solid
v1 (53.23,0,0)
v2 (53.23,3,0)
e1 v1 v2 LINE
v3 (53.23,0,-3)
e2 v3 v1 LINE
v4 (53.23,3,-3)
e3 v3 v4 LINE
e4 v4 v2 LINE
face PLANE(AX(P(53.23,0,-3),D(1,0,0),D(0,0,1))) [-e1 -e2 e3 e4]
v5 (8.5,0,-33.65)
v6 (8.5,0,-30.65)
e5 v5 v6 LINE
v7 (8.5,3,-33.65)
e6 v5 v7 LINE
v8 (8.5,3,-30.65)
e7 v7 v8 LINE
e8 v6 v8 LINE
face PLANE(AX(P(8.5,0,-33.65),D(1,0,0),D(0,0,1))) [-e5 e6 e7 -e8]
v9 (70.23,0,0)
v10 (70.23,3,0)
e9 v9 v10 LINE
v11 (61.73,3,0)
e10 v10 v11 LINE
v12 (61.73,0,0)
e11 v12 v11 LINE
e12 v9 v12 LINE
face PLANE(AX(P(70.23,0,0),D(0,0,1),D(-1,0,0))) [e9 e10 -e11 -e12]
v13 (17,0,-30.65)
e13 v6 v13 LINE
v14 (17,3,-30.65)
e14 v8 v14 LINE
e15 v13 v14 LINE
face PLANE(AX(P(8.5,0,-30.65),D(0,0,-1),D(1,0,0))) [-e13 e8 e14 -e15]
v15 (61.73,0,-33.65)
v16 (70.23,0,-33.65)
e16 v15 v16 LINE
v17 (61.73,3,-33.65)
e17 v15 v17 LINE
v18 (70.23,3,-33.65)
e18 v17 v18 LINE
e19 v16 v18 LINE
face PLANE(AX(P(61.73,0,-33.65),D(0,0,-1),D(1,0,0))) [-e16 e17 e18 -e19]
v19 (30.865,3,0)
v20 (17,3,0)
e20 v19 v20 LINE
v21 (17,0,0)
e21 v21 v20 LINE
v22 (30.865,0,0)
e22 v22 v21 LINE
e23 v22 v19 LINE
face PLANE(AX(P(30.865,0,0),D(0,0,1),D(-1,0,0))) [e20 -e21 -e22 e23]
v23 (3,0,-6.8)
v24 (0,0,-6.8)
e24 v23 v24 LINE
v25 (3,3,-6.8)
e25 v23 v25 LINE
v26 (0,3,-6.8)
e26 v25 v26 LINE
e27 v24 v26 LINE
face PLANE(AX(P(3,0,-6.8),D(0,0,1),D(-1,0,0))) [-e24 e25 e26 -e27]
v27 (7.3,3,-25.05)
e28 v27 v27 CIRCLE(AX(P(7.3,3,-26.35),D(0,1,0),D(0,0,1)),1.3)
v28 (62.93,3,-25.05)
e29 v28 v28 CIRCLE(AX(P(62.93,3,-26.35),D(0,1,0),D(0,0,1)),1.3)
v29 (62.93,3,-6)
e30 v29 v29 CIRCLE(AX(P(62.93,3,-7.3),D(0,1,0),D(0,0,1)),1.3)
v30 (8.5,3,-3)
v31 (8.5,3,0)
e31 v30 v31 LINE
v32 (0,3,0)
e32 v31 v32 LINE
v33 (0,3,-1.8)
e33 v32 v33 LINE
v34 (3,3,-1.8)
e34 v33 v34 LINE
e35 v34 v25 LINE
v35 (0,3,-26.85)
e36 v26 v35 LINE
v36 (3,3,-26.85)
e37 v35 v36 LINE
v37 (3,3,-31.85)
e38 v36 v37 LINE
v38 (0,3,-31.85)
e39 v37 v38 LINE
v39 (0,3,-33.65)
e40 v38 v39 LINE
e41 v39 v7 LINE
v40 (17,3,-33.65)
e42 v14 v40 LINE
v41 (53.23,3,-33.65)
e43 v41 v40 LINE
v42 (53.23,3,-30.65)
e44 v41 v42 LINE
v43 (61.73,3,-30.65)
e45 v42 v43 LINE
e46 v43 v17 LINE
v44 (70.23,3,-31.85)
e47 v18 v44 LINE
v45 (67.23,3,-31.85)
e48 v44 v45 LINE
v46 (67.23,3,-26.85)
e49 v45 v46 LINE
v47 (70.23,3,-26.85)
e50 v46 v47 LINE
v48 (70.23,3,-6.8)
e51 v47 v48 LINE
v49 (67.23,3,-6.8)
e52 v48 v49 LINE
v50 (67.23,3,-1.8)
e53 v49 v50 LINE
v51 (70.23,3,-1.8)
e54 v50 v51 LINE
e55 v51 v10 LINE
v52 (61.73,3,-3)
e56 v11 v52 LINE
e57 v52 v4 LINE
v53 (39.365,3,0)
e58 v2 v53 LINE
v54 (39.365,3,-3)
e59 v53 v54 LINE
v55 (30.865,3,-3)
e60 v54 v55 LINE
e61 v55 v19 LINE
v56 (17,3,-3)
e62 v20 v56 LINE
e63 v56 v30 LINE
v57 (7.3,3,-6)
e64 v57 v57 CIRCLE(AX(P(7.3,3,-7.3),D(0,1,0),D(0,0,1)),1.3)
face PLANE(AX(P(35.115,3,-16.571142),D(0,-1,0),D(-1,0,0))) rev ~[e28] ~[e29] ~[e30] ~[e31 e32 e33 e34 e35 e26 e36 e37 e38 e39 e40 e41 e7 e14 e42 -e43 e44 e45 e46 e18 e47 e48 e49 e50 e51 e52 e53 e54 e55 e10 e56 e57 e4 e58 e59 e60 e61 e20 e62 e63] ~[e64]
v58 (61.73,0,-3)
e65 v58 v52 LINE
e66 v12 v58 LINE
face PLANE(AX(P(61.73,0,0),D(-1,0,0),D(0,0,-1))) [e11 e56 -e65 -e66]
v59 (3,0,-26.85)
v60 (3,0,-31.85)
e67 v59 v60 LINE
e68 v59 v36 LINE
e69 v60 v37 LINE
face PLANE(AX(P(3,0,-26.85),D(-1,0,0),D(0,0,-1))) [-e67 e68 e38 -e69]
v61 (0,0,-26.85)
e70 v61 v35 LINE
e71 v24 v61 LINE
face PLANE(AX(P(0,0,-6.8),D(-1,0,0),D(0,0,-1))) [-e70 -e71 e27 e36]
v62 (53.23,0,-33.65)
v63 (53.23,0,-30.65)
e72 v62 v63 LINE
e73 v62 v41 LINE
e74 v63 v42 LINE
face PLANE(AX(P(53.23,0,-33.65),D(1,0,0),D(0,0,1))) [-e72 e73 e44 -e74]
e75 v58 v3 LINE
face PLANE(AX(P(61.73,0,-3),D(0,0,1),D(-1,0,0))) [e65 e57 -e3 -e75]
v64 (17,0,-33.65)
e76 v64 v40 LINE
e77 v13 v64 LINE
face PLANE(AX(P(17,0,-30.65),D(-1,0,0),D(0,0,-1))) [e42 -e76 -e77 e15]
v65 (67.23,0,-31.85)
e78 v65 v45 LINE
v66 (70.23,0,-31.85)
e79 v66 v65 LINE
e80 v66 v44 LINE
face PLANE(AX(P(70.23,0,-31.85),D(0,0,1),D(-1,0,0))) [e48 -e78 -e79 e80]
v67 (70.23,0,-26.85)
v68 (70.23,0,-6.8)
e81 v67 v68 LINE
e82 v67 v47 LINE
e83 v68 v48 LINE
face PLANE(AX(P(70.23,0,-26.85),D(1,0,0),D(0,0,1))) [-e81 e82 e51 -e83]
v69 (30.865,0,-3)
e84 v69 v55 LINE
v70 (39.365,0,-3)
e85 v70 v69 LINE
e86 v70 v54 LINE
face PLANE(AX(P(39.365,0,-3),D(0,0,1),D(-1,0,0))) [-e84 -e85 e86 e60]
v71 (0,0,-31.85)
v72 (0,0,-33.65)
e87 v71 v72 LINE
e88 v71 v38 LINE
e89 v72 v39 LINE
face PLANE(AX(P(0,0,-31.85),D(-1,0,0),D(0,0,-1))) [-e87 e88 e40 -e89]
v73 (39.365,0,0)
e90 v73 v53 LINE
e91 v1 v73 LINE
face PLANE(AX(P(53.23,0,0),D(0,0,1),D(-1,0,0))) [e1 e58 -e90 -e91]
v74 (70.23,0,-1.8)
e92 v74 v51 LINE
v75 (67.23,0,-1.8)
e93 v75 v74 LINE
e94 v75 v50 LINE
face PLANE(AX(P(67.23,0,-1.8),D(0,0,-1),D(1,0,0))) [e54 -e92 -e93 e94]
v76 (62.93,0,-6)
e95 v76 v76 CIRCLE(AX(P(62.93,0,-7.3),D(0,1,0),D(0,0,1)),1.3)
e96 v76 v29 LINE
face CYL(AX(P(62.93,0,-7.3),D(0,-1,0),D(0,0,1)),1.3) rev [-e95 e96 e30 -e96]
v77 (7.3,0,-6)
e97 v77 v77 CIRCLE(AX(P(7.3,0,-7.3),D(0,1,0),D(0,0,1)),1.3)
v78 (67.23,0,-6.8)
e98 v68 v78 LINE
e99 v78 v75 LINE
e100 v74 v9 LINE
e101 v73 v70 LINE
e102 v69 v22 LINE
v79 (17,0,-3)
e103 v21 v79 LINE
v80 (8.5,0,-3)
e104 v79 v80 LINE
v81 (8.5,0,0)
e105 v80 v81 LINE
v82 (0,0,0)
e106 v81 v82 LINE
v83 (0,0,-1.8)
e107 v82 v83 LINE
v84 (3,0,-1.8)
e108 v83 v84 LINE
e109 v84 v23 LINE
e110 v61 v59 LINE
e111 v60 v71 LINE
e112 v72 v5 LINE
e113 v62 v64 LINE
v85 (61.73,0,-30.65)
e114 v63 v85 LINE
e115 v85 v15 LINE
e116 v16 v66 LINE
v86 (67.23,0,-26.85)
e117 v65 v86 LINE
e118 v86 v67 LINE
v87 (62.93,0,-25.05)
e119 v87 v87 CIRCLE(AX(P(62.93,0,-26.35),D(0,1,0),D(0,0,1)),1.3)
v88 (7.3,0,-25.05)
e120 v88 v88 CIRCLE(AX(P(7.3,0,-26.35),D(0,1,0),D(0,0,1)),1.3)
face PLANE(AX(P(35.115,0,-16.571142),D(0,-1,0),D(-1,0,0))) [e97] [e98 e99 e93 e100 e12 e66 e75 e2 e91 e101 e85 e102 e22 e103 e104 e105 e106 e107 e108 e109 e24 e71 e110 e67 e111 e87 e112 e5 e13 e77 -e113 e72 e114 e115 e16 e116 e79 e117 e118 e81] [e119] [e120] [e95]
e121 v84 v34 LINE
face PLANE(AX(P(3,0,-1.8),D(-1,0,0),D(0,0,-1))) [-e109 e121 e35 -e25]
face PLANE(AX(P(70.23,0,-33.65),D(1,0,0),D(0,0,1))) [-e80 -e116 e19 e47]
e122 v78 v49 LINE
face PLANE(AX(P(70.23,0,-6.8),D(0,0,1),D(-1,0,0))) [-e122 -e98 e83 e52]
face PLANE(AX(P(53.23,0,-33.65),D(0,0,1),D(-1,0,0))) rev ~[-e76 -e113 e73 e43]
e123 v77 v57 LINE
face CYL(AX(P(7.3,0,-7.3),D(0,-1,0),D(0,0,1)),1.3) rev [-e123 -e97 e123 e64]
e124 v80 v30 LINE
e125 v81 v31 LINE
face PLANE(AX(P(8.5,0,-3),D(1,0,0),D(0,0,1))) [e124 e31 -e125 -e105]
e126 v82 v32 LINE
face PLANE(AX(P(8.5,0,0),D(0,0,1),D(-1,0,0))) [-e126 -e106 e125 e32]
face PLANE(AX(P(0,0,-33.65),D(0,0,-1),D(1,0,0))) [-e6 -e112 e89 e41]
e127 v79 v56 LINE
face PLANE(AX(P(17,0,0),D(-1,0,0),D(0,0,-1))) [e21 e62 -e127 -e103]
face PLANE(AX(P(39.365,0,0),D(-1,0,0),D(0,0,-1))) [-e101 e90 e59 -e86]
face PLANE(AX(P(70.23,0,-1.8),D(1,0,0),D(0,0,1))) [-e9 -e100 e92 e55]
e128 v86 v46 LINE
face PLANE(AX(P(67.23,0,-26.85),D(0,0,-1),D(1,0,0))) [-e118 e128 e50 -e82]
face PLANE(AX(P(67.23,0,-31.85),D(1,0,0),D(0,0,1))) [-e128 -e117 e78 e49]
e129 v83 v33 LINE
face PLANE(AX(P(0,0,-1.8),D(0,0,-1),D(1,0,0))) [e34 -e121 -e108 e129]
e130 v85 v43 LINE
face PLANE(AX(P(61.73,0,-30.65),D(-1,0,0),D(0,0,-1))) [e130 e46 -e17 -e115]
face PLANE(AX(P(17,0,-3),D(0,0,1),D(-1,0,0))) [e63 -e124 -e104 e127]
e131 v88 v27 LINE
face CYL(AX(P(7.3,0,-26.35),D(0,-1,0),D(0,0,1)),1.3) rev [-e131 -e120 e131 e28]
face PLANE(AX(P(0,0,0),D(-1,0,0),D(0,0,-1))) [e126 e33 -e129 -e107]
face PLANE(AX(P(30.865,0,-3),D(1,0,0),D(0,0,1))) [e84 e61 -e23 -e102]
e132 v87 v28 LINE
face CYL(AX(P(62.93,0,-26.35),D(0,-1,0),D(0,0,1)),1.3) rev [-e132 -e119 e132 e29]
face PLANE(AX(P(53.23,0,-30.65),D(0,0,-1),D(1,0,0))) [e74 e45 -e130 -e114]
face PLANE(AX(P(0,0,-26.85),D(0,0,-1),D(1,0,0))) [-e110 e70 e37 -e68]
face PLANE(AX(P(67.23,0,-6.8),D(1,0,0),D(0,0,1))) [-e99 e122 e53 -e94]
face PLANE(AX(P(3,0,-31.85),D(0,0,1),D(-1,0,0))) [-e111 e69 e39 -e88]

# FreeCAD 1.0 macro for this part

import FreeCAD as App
import Part
import Sketcher

doc = App.newDocument("Part")
body = doc.addObject("PartDesign::Body", "Body")

# Sketch on XZ plane
sketch1 = body.newObject("Sketcher::SketchObject", "Sketch")
sketch1.AttachmentSupport = (doc.getObject("XZ_Plane"), [""])
sketch1.MapMode = "FlatFace"
sketch1.addGeometry([
    Part.LineSegment(App.Vector(53.2, -33.6, 0), App.Vector(17, -33.6, 0)),  # 0
    Part.LineSegment(App.Vector(17, -33.6, 0), App.Vector(17, -30.6, 0)),  # 1
    Part.LineSegment(App.Vector(17, -30.6, 0), App.Vector(8.5, -30.6, 0)),  # 2
    Part.LineSegment(App.Vector(8.5, -30.6, 0), App.Vector(8.5, -33.6, 0)),  # 3
    Part.LineSegment(App.Vector(8.5, -33.6, 0), App.Vector(0, -33.6, 0)),  # 4
    Part.LineSegment(App.Vector(0, -33.6, 0), App.Vector(0, -31.9, 0)),  # 5
    Part.LineSegment(App.Vector(0, -31.9, 0), App.Vector(3, -31.9, 0)),  # 6
    Part.LineSegment(App.Vector(3, -31.9, 0), App.Vector(3, -26.9, 0)),  # 7
    Part.LineSegment(App.Vector(3, -26.9, 0), App.Vector(0, -26.9, 0)),  # 8
    Part.LineSegment(App.Vector(0, -26.9, 0), App.Vector(0, -6.8, 0)),  # 9
    Part.LineSegment(App.Vector(0, -6.8, 0), App.Vector(3, -6.8, 0)),  # 10
    Part.LineSegment(App.Vector(3, -6.8, 0), App.Vector(3, -1.8, 0)),  # 11
    Part.LineSegment(App.Vector(3, -1.8, 0), App.Vector(0, -1.8, 0)),  # 12
    Part.LineSegment(App.Vector(0, -1.8, 0), App.Vector(0, 0, 0)),  # 13
    Part.LineSegment(App.Vector(0, 0, 0), App.Vector(8.5, 0, 0)),  # 14
    Part.LineSegment(App.Vector(8.5, 0, 0), App.Vector(8.5, -3, 0)),  # 15
    Part.LineSegment(App.Vector(8.5, -3, 0), App.Vector(17, -3, 0)),  # 16
    Part.LineSegment(App.Vector(17, -3, 0), App.Vector(17, 0, 0)),  # 17
    Part.LineSegment(App.Vector(17, 0, 0), App.Vector(30.9, 0, 0)),  # 18
    Part.LineSegment(App.Vector(30.9, 0, 0), App.Vector(30.9, -3, 0)),  # 19
    Part.LineSegment(App.Vector(30.9, -3, 0), App.Vector(39.4, -3, 0)),  # 20
    Part.LineSegment(App.Vector(39.4, -3, 0), App.Vector(39.4, 0, 0)),  # 21
    Part.LineSegment(App.Vector(39.4, 0, 0), App.Vector(53.2, 0, 0)),  # 22
    Part.LineSegment(App.Vector(53.2, 0, 0), App.Vector(53.2, -3, 0)),  # 23
    Part.LineSegment(App.Vector(53.2, -3, 0), App.Vector(61.7, -3, 0)),  # 24
    Part.LineSegment(App.Vector(61.7, -3, 0), App.Vector(61.7, 0, 0)),  # 25
    Part.LineSegment(App.Vector(61.7, 0, 0), App.Vector(70.2, 0, 0)),  # 26
    Part.LineSegment(App.Vector(70.2, 0, 0), App.Vector(70.2, -1.8, 0)),  # 27
    Part.LineSegment(App.Vector(70.2, -1.8, 0), App.Vector(67.2, -1.8, 0)),  # 28
    Part.LineSegment(App.Vector(67.2, -1.8, 0), App.Vector(67.2, -6.8, 0)),  # 29
    Part.LineSegment(App.Vector(67.2, -6.8, 0), App.Vector(70.2, -6.8, 0)),  # 30
    Part.LineSegment(App.Vector(70.2, -6.8, 0), App.Vector(70.2, -26.9, 0)),  # 31
    Part.LineSegment(App.Vector(70.2, -26.9, 0), App.Vector(67.2, -26.9, 0)),  # 32
    Part.LineSegment(App.Vector(67.2, -26.9, 0), App.Vector(67.2, -31.9, 0)),  # 33
    Part.LineSegment(App.Vector(67.2, -31.9, 0), App.Vector(70.2, -31.9, 0)),  # 34
    Part.LineSegment(App.Vector(70.2, -31.9, 0), App.Vector(70.2, -33.6, 0)),  # 35
    Part.LineSegment(App.Vector(70.2, -33.6, 0), App.Vector(61.7, -33.6, 0)),  # 36
    Part.LineSegment(App.Vector(61.7, -33.6, 0), App.Vector(61.7, -30.6, 0)),  # 37
    Part.LineSegment(App.Vector(61.7, -30.6, 0), App.Vector(53.2, -30.6, 0)),  # 38
    Part.LineSegment(App.Vector(53.2, -30.6, 0), App.Vector(53.2, -33.6, 0)),  # 39
    Part.Circle(App.Vector(62.9, -7.3, 0), App.Vector(0, 0, 1), 1.3),  # 40
    Part.Circle(App.Vector(7.3, -7.3, 0), App.Vector(0, 0, 1), 1.3),  # 41
    Part.Circle(App.Vector(62.9, -26.4, 0), App.Vector(0, 0, 1), 1.3),  # 42
    Part.Circle(App.Vector(7.3, -26.4, 0), App.Vector(0, 0, 1), 1.3),  # 43
], False)
sketch1.addConstraint([
    Sketcher.Constraint("Coincident", 0, 2, 1, 1),
    Sketcher.Constraint("Coincident", 1, 2, 2, 1),
    Sketcher.Constraint("Coincident", 2, 2, 3, 1),
    Sketcher.Constraint("Coincident", 3, 2, 4, 1),
    Sketcher.Constraint("Coincident", 4, 2, 5, 1),
    Sketcher.Constraint("Coincident", 5, 2, 6, 1),
    Sketcher.Constraint("Coincident", 6, 2, 7, 1),
    Sketcher.Constraint("Coincident", 7, 2, 8, 1),
    Sketcher.Constraint("Coincident", 8, 2, 9, 1),
    Sketcher.Constraint("Coincident", 9, 2, 10, 1),
    Sketcher.Constraint("Coincident", 10, 2, 11, 1),
    Sketcher.Constraint("Coincident", 11, 2, 12, 1),
    Sketcher.Constraint("Coincident", 12, 2, 13, 1),
    Sketcher.Constraint("Coincident", 13, 2, 14, 1),
    Sketcher.Constraint("Coincident", 14, 2, 15, 1),
    Sketcher.Constraint("Coincident", 15, 2, 16, 1),
    Sketcher.Constraint("Coincident", 16, 2, 17, 1),
    Sketcher.Constraint("Coincident", 17, 2, 18, 1),
    Sketcher.Constraint("Coincident", 18, 2, 19, 1),
    Sketcher.Constraint("Coincident", 19, 2, 20, 1),
    Sketcher.Constraint("Coincident", 20, 2, 21, 1),
    Sketcher.Constraint("Coincident", 21, 2, 22, 1),
    Sketcher.Constraint("Coincident", 22, 2, 23, 1),
    Sketcher.Constraint("Coincident", 23, 2, 24, 1),
    Sketcher.Constraint("Coincident", 24, 2, 25, 1),
    Sketcher.Constraint("Coincident", 25, 2, 26, 1),
    Sketcher.Constraint("Coincident", 26, 2, 27, 1),
    Sketcher.Constraint("Coincident", 27, 2, 28, 1),
    Sketcher.Constraint("Coincident", 28, 2, 29, 1),
    Sketcher.Constraint("Coincident", 29, 2, 30, 1),
    Sketcher.Constraint("Coincident", 30, 2, 31, 1),
    Sketcher.Constraint("Coincident", 31, 2, 32, 1),
    Sketcher.Constraint("Coincident", 32, 2, 33, 1),
    Sketcher.Constraint("Coincident", 33, 2, 34, 1),
    Sketcher.Constraint("Coincident", 34, 2, 35, 1),
    Sketcher.Constraint("Coincident", 35, 2, 36, 1),
    Sketcher.Constraint("Coincident", 36, 2, 37, 1),
    Sketcher.Constraint("Coincident", 37, 2, 38, 1),
    Sketcher.Constraint("Coincident", 38, 2, 39, 1),
    Sketcher.Constraint("Coincident", 39, 2, 0, 1),
    Sketcher.Constraint("Horizontal", 0),
    Sketcher.Constraint("Vertical", 1),
    Sketcher.Constraint("Horizontal", 2),
    Sketcher.Constraint("Vertical", 3),
    Sketcher.Constraint("Horizontal", 4),
    Sketcher.Constraint("Vertical", 5),
    Sketcher.Constraint("Horizontal", 6),
    Sketcher.Constraint("Vertical", 7),
    Sketcher.Constraint("Horizontal", 8),
    Sketcher.Constraint("Vertical", 9),
    Sketcher.Constraint("Horizontal", 10),
    Sketcher.Constraint("Vertical", 11),
    Sketcher.Constraint("Horizontal", 12),
    Sketcher.Constraint("Vertical", 13),
    Sketcher.Constraint("Horizontal", 14),
    Sketcher.Constraint("Vertical", 15),
    Sketcher.Constraint("Horizontal", 16),
    Sketcher.Constraint("Vertical", 17),
    Sketcher.Constraint("Horizontal", 18),
    Sketcher.Constraint("Vertical", 19),
    Sketcher.Constraint("Horizontal", 20),
    Sketcher.Constraint("Vertical", 21),
    Sketcher.Constraint("Horizontal", 22),
    Sketcher.Constraint("Vertical", 23),
    Sketcher.Constraint("Horizontal", 24),
    Sketcher.Constraint("Vertical", 25),
    Sketcher.Constraint("Horizontal", 26),
    Sketcher.Constraint("Vertical", 27),
    Sketcher.Constraint("Horizontal", 28),
    Sketcher.Constraint("Vertical", 29),
    Sketcher.Constraint("Horizontal", 30),
    Sketcher.Constraint("Vertical", 31),
    Sketcher.Constraint("Horizontal", 32),
    Sketcher.Constraint("Vertical", 33),
    Sketcher.Constraint("Horizontal", 34),
    Sketcher.Constraint("Vertical", 35),
    Sketcher.Constraint("Horizontal", 36),
    Sketcher.Constraint("Vertical", 37),
    Sketcher.Constraint("Horizontal", 38),
    Sketcher.Constraint("Vertical", 39),
    Sketcher.Constraint("Coincident", 13, 2, -1, 1),
    Sketcher.Constraint("Equal", 40, 41),
    Sketcher.Constraint("Equal", 41, 42),
    Sketcher.Constraint("Equal", 42, 43),
    Sketcher.Constraint("PointOnObject", 4, 2, -2),
    Sketcher.Constraint("PointOnObject", 8, 2, -2),
    Sketcher.Constraint("PointOnObject", 17, 2, -1),
    Sketcher.Constraint("PointOnObject", 21, 2, -1),
    Sketcher.Constraint("PointOnObject", 25, 2, -1),
    Sketcher.Constraint("Horizontal", 40, 3, 41, 3),
    Sketcher.Constraint("Horizontal", 42, 3, 43, 3),
    Sketcher.Constraint("Horizontal", 0, 2, 3, 2),
    Sketcher.Constraint("Horizontal", 16, 2, 19, 2),
    Sketcher.Constraint("Horizontal", 20, 2, 23, 2),
    Sketcher.Constraint("Horizontal", 12, 2, 27, 2),
    Sketcher.Constraint("Horizontal", 10, 2, 29, 2),
    Sketcher.Constraint("Horizontal", 8, 2, 31, 2),
    Sketcher.Constraint("Horizontal", 6, 2, 33, 2),
    Sketcher.Constraint("Horizontal", 4, 2, 35, 2),
    Sketcher.Constraint("Horizontal", 2, 2, 37, 2),
    Sketcher.Constraint("Vertical", 40, 3, 42, 3),
    Sketcher.Constraint("Vertical", 41, 3, 43, 3),
    Sketcher.Constraint("Vertical", 7, 2, 10, 2),
    Sketcher.Constraint("Vertical", 3, 2, 14, 2),
    Sketcher.Constraint("Vertical", 1, 2, 16, 2),
    Sketcher.Constraint("Vertical", 27, 2, 30, 2),
    Sketcher.Constraint("Vertical", 29, 2, 32, 2),
    Sketcher.Constraint("Vertical", 31, 2, 34, 2),
    Sketcher.Constraint("Vertical", 25, 2, 36, 2),
    Sketcher.Constraint("Vertical", 23, 2, 38, 2),
    Sketcher.Constraint("Equal", 2, 4),
    Sketcher.Constraint("Equal", 16, 20),
    Sketcher.Constraint("Equal", 18, 22),
    Sketcher.Constraint("Equal", 20, 24),
    Sketcher.Constraint("Equal", 24, 26),
    Sketcher.Constraint("Equal", 12, 28),
    Sketcher.Constraint("Equal", 34, 1),
    Sketcher.Constraint("Equal", 7, 11),
    Sketcher.Constraint("Equal", 5, 13),
    Sketcher.Constraint("Equal", 3, 15),
    Sketcher.Constraint("Diameter", 40, 2.6),
    Sketcher.Constraint("DistanceX", 6, 1, 6, 2, 3.0),
    Sketcher.Constraint("DistanceY", 7, 1, 7, 2, 5.0),
    Sketcher.Constraint("DistanceX", 2, 2, 2, 1, 8.5),
    Sketcher.Constraint("DistanceY", 5, 1, 5, 2, 1.8),
    Sketcher.Constraint("DistanceX", 0, 2, 0, 1, 36.23),
    Sketcher.Constraint("DistanceY", 9, 1, 9, 2, 20.05),
    Sketcher.Constraint("DistanceY", 40, 3, -1, 1, 7.3),
    Sketcher.Constraint("DistanceX", -1, 1, 41, 3, 7.3),
    Sketcher.Constraint("DistanceY", 0, 2, 43, 3, 7.3),
    Sketcher.Constraint("DistanceX", 22, 2, 40, 3, 9.7),
])
pad1 = body.newObject("PartDesign::Pad", "Pad")
pad1.Profile = sketch1
pad1.Length = 3
pad1.Reversed = True

doc.recompute()
